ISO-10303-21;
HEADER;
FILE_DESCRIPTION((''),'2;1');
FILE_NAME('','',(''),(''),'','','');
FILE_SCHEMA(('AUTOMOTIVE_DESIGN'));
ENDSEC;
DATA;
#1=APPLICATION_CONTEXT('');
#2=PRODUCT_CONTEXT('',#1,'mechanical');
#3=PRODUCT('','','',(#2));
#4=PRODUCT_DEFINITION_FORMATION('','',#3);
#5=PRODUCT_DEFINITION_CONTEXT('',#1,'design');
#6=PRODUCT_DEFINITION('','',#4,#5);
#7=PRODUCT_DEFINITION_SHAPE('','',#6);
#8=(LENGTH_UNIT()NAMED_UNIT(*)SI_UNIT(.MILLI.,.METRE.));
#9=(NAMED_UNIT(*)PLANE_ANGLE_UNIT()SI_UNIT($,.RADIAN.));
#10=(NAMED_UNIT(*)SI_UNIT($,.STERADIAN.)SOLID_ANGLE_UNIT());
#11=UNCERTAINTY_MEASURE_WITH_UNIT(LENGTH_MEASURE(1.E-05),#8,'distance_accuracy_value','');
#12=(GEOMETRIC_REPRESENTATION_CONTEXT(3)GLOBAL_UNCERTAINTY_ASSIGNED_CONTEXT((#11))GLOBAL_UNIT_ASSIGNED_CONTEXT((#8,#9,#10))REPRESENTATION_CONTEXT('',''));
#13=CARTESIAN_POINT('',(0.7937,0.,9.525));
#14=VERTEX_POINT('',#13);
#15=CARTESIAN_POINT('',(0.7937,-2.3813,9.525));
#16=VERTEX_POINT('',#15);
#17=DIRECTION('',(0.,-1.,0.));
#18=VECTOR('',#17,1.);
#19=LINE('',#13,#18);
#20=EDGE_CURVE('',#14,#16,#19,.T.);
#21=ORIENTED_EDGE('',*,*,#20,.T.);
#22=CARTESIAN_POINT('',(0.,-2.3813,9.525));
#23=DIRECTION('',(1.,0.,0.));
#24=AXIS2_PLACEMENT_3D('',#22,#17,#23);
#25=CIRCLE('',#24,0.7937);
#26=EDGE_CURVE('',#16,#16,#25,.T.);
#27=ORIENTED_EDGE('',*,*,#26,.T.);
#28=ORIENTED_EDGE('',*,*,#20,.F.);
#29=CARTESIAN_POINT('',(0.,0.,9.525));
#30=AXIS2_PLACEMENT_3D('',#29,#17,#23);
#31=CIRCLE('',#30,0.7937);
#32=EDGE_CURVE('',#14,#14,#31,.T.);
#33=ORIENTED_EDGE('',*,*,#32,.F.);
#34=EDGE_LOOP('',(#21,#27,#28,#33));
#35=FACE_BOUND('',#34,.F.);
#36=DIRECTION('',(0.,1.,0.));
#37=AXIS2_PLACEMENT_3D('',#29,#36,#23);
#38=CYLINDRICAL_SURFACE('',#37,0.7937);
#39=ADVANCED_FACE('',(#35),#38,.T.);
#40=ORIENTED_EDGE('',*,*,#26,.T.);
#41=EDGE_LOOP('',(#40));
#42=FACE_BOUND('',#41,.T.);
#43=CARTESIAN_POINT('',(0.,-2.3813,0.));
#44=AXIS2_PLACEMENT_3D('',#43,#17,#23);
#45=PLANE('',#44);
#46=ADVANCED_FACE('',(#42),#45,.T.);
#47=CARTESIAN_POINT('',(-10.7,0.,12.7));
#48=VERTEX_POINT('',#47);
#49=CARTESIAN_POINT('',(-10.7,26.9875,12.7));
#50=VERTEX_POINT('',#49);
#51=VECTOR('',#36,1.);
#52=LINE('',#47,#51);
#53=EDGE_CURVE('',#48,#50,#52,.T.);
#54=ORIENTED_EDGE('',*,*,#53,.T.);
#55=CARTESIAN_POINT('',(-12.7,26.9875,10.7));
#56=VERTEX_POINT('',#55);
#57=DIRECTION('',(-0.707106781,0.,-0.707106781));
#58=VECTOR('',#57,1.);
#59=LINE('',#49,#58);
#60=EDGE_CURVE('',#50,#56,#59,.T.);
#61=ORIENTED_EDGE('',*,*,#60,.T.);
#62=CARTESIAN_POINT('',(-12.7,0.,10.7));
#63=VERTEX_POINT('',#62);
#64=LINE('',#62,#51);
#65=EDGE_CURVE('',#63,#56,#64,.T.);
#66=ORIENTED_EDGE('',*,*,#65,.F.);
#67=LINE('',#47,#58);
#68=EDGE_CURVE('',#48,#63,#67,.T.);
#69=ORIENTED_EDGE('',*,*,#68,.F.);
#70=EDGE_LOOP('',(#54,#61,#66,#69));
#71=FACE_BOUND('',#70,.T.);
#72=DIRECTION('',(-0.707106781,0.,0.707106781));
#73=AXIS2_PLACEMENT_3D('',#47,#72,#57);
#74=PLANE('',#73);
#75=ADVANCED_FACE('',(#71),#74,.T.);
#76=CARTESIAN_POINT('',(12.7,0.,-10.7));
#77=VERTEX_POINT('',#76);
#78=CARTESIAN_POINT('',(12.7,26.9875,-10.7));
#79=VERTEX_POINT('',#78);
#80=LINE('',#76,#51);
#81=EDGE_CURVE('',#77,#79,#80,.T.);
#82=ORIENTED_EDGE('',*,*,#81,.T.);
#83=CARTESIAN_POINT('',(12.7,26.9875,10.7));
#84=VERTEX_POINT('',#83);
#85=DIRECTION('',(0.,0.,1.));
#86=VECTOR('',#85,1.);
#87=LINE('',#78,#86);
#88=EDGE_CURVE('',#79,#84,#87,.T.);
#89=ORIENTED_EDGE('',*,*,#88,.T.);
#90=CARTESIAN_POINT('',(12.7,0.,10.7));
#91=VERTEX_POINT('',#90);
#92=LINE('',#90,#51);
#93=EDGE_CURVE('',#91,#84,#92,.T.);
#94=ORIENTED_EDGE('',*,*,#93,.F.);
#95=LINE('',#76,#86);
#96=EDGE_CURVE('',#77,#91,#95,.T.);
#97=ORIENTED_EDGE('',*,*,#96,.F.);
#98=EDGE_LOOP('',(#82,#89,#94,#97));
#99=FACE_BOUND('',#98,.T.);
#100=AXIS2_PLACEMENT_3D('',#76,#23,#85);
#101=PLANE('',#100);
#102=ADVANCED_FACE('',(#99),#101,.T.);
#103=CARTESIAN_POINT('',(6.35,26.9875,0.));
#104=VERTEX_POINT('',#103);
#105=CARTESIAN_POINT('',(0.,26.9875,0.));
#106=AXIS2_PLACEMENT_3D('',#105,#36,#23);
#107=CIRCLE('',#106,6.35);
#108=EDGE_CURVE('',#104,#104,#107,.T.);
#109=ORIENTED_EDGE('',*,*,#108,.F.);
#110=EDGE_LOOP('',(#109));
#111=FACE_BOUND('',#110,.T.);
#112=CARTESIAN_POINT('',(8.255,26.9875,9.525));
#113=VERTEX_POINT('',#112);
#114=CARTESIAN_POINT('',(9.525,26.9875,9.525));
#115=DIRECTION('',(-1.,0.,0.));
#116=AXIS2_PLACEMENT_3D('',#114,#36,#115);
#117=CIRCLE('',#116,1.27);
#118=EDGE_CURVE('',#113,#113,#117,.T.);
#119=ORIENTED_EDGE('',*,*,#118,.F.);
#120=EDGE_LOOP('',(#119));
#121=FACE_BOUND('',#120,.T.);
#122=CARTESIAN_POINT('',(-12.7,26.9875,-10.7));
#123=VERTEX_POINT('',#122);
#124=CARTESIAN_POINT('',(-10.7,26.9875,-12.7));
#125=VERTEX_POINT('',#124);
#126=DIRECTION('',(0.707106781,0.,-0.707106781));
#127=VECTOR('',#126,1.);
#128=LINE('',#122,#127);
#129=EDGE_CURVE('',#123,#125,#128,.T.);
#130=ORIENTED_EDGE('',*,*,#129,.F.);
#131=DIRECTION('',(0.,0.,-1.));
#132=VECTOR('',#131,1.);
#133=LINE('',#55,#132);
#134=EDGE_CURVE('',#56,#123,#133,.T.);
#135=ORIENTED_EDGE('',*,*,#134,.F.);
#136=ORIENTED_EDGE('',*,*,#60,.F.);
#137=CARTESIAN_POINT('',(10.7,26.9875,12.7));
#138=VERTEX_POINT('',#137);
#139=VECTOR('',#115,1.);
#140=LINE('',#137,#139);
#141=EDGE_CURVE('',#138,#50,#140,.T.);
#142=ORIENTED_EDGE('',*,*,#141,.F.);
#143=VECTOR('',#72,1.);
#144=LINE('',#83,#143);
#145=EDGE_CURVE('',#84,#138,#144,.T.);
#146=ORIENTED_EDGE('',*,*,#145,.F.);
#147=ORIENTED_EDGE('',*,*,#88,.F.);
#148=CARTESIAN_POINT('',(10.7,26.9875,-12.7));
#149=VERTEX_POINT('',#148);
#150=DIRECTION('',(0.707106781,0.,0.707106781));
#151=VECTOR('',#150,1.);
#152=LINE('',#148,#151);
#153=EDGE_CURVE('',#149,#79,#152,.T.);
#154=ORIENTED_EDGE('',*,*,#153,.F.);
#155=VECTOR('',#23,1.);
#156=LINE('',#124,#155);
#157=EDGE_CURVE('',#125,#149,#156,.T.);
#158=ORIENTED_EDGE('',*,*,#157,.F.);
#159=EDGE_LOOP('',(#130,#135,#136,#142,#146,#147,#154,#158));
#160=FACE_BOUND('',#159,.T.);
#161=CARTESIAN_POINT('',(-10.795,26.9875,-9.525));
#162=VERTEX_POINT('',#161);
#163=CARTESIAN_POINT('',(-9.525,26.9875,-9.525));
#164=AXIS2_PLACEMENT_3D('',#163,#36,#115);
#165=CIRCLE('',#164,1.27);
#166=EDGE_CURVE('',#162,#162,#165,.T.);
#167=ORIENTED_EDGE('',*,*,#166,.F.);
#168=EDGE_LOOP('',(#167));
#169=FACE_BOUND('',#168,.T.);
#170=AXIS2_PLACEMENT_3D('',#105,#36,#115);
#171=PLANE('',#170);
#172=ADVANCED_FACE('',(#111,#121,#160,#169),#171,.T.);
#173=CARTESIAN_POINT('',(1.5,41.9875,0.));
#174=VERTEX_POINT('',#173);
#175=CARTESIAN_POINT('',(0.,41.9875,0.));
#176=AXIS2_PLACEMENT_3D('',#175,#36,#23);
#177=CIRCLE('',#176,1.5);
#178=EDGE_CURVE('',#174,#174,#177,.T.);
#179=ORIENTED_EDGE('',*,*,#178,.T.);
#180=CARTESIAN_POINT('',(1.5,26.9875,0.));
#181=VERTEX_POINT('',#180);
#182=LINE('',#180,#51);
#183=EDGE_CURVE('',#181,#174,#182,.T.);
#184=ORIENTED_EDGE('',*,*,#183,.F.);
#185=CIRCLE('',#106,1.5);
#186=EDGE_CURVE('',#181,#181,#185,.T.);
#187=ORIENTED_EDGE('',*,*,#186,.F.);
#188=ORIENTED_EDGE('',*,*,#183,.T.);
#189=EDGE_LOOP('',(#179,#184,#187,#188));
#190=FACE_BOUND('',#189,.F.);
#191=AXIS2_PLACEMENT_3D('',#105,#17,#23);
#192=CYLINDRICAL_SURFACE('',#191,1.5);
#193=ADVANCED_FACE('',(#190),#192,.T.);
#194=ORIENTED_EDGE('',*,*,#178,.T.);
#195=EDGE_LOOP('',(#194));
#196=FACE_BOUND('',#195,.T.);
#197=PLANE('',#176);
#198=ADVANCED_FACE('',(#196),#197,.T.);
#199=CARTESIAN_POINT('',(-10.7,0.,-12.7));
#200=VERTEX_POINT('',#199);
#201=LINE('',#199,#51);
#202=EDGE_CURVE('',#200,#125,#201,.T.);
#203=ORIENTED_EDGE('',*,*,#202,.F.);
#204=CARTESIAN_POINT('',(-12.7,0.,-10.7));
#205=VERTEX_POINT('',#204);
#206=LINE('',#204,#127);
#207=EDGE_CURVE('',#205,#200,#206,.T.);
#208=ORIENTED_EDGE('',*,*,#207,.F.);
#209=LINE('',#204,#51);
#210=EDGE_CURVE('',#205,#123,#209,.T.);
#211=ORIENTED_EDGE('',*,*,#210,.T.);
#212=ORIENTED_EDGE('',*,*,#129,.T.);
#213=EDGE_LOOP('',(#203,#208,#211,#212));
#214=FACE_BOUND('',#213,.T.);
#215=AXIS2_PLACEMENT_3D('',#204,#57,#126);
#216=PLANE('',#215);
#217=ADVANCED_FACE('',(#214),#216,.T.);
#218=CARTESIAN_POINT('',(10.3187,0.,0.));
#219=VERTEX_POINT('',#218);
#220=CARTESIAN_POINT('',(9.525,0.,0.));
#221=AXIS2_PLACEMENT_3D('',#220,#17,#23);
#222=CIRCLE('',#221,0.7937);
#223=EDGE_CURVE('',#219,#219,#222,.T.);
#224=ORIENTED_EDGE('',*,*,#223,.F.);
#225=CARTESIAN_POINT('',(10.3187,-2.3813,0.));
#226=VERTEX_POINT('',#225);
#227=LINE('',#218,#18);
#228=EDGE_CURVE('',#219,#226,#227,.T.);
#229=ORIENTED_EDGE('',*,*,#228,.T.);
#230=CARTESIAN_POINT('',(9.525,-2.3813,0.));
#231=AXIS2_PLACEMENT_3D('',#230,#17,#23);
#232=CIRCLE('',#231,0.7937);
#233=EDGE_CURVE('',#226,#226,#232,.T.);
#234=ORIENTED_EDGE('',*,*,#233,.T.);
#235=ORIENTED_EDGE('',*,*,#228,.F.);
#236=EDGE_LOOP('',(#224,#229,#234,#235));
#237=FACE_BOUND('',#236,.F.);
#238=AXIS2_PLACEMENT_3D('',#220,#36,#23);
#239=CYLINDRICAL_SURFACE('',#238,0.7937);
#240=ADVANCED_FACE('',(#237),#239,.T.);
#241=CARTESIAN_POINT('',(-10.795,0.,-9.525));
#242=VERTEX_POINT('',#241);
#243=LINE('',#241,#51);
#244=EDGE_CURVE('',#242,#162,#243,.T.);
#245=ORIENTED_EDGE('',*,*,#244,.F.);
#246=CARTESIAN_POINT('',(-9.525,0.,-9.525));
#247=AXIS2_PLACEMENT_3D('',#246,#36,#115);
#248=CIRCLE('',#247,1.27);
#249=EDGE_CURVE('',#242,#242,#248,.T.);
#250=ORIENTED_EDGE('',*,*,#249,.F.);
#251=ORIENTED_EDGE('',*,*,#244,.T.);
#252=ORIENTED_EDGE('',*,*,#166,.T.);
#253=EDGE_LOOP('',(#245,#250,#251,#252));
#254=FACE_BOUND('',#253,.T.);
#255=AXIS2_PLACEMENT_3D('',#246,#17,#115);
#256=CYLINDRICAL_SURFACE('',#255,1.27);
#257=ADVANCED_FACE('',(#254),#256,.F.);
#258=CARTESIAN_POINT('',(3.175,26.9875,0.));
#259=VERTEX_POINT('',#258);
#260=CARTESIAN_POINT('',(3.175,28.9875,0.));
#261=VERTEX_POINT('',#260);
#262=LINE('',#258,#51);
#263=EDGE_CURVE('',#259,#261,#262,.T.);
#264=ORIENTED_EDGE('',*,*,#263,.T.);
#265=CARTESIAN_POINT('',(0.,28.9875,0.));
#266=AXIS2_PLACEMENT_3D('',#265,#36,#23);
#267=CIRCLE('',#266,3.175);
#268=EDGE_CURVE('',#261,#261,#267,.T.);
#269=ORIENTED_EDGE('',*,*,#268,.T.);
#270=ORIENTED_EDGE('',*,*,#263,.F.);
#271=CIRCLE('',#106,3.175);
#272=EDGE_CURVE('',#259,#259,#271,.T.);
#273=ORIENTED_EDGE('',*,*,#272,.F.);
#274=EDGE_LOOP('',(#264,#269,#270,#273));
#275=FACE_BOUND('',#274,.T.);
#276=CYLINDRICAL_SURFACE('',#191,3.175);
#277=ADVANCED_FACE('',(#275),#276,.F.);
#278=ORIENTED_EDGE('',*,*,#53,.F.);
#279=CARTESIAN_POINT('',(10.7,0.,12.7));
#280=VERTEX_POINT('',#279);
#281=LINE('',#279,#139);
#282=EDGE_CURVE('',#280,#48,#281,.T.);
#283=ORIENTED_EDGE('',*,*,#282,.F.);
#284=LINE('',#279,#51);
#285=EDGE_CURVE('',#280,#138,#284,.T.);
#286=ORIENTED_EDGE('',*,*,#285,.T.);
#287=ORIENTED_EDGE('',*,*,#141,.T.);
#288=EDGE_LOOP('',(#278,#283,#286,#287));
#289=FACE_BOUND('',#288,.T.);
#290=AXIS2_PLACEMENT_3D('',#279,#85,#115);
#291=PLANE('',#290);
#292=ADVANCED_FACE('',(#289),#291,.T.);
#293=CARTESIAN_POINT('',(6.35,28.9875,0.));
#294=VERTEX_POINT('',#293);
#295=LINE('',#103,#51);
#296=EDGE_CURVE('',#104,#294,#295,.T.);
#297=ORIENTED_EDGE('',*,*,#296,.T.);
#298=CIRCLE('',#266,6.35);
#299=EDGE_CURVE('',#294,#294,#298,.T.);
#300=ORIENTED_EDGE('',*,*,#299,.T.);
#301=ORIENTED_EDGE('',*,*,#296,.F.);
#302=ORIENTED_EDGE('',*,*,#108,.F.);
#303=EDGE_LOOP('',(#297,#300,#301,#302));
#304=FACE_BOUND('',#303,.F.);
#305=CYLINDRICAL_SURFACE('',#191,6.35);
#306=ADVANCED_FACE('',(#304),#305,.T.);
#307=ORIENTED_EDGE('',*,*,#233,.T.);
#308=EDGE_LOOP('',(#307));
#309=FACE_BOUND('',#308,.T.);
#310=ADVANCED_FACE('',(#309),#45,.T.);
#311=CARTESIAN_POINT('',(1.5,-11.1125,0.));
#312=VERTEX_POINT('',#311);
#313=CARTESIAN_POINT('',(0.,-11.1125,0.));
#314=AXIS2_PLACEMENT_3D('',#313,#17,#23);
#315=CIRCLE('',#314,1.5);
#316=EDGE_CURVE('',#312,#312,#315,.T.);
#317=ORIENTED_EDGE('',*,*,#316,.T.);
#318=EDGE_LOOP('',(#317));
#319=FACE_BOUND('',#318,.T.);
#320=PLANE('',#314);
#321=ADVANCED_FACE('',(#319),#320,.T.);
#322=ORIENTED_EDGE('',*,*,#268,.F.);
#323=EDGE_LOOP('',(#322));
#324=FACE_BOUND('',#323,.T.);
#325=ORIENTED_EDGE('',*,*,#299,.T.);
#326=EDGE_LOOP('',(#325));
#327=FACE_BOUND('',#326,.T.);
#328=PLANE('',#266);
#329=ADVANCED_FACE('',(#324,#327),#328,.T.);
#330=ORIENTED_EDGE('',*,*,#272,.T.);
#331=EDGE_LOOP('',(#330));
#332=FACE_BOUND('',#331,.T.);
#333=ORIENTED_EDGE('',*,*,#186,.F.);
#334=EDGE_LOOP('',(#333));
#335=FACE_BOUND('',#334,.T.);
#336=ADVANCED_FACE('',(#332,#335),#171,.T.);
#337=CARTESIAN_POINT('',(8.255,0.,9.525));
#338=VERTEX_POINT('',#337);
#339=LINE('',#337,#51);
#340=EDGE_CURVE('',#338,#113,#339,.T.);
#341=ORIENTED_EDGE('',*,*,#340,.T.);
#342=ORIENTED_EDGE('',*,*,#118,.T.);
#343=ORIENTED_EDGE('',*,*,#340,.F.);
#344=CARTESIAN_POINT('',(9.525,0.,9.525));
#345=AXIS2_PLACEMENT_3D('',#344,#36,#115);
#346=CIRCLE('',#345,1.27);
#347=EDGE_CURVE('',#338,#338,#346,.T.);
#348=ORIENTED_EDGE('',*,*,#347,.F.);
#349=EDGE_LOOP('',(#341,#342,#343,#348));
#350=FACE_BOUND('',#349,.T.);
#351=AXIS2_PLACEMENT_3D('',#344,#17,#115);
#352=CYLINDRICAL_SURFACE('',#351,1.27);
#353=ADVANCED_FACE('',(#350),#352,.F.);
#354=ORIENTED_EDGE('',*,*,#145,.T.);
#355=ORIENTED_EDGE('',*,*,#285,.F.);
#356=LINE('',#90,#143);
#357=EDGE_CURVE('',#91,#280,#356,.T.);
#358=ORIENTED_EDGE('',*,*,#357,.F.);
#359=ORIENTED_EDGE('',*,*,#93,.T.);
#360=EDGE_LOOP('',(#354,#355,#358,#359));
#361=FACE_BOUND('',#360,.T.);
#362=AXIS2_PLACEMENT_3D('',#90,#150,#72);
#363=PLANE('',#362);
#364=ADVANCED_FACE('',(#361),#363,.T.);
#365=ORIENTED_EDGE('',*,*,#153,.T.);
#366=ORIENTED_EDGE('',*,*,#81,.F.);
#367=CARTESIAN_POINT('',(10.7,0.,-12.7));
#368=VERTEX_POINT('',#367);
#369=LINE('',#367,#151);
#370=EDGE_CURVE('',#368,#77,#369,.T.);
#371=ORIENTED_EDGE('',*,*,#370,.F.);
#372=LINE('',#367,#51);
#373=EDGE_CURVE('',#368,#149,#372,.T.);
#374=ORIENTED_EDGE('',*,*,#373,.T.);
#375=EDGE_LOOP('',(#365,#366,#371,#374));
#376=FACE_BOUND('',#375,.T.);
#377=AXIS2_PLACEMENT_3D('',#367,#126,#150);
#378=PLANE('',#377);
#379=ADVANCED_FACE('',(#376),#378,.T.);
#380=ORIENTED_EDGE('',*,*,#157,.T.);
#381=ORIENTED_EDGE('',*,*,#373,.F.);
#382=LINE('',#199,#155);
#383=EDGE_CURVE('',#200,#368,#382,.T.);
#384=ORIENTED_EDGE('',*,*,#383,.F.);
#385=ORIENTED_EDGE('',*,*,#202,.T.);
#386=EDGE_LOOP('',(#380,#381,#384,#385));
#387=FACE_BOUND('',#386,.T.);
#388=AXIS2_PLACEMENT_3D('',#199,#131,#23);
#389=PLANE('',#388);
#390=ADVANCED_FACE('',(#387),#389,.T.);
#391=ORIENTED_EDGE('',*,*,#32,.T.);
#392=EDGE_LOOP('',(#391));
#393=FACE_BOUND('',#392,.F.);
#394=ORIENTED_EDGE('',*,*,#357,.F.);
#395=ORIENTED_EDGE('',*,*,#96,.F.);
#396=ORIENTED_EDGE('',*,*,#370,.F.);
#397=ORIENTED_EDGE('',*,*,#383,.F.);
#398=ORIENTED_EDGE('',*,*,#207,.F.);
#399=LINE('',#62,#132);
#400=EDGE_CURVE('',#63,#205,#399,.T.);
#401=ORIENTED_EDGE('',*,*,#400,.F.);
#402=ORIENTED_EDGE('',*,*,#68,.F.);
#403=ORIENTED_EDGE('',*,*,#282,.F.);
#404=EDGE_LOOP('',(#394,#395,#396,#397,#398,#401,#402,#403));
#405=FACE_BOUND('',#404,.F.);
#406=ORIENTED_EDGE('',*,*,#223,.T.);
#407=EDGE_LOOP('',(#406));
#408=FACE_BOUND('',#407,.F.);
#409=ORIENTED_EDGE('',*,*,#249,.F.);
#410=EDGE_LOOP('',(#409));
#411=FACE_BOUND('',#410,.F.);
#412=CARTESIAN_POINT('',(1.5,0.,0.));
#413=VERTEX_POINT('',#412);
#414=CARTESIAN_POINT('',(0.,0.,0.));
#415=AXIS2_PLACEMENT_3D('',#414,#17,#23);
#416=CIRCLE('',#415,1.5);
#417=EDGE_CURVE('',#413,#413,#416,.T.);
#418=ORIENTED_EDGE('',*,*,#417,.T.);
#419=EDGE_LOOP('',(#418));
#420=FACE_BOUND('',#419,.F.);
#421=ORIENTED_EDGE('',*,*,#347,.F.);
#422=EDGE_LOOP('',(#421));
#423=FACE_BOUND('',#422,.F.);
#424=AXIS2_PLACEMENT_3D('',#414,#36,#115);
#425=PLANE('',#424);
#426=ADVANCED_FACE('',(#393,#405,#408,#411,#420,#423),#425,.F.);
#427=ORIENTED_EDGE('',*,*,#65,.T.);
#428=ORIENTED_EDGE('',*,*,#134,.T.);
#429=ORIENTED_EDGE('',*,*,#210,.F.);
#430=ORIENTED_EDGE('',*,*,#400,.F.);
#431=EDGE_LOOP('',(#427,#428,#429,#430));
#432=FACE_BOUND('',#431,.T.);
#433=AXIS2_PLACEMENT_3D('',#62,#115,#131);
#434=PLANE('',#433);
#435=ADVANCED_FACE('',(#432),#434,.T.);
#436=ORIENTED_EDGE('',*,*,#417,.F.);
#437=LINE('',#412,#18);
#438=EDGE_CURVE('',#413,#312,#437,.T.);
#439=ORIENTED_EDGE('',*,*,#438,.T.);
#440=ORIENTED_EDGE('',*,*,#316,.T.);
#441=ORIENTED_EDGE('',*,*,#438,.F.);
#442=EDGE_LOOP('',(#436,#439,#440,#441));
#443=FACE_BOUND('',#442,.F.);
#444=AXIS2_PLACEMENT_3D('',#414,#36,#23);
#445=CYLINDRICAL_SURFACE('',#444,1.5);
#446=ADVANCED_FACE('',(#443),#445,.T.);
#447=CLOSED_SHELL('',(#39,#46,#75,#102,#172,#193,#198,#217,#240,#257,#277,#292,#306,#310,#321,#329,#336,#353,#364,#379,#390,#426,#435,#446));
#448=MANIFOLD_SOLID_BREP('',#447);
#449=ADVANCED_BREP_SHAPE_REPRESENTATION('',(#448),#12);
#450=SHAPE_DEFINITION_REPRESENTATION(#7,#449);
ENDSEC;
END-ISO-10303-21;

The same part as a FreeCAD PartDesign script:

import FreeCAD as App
import Part
import Sketcher
from FreeCAD import Vector
Q = App.Units.Quantity

doc = App.newDocument("Part")
body = doc.addObject("PartDesign::Body", "Body")

# Sketch on XZ plane
sketch1 = body.newObject("Sketcher::SketchObject", "Sketch")
sketch1.AttachmentSupport = (doc.getObject("XZ_Plane"), [""])
sketch1.MapMode = "FlatFace"
sketch1.addGeometry([
    Part.LineSegment(Vector(10.7, -12.7, 0), Vector(-10.7, -12.7, 0)),  # 0
    Part.LineSegment(Vector(-10.7, -12.7, 0), Vector(-12.7, -10.7, 0)),  # 1
    Part.LineSegment(Vector(-12.7, -10.7, 0), Vector(-12.7, 10.7, 0)),  # 2
    Part.LineSegment(Vector(-12.7, 10.7, 0), Vector(-10.7, 12.7, 0)),  # 3
    Part.LineSegment(Vector(-10.7, 12.7, 0), Vector(10.7, 12.7, 0)),  # 4
    Part.LineSegment(Vector(10.7, 12.7, 0), Vector(12.7, 10.7, 0)),  # 5
    Part.LineSegment(Vector(12.7, 10.7, 0), Vector(12.7, -10.7, 0)),  # 6
    Part.LineSegment(Vector(12.7, -10.7, 0), Vector(10.7, -12.7, 0)),  # 7
    Part.Circle(Vector(-9.5, -9.5, 0), Vector(0, 0, 1), 1.3),  # 8
    Part.Circle(Vector(9.5, 9.5, 0), Vector(0, 0, 1), 1.3),  # 9
], False)
sketch1.addConstraint([
    Sketcher.Constraint("Coincident", 0, 2, 1, 1),
    Sketcher.Constraint("Coincident", 1, 2, 2, 1),
    Sketcher.Constraint("Coincident", 2, 2, 3, 1),
    Sketcher.Constraint("Coincident", 3, 2, 4, 1),
    Sketcher.Constraint("Coincident", 4, 2, 5, 1),
    Sketcher.Constraint("Coincident", 5, 2, 6, 1),
    Sketcher.Constraint("Coincident", 6, 2, 7, 1),
    Sketcher.Constraint("Coincident", 7, 2, 0, 1),
    Sketcher.Constraint("Horizontal", 0),
    Sketcher.Constraint("Vertical", 2),
    Sketcher.Constraint("Horizontal", 4),
    Sketcher.Constraint("Vertical", 6),
    Sketcher.Constraint("Equal", 8, 9),
    Sketcher.Constraint("Symmetric", 8, 3, 9, 3, -1, 1),
    Sketcher.Constraint("Symmetric", 0, 2, 4, 2, -1, 1),
    Sketcher.Constraint("Symmetric", 1, 2, 5, 2, -1, 1),
    Sketcher.Constraint("Perpendicular", 1, 3),
    Sketcher.Constraint("Perpendicular", 5, 7),
    Sketcher.Constraint("Horizontal", 2, 2, 5, 2),
    Sketcher.Constraint("Horizontal", 1, 2, 6, 2),
    Sketcher.Constraint("Vertical", 0, 2, 3, 2),
    Sketcher.Constraint("Equal", 4, 2),
    Sketcher.Constraint("Diameter", 8, Q("0.1 in")),
    Sketcher.Constraint("DistanceY", 0, 2, 3, 2, Q("1 in")),
    Sketcher.Constraint("DistanceY", 0, 2, 8, 3, Q("0.125 in")),
    Sketcher.Constraint("DistanceX", 1, 2, 8, 3, Q("0.125 in")),
    Sketcher.Constraint("DistanceX", 1, 2, 0, 2, Q("2 mm")),
])
pad1 = body.newObject("PartDesign::Pad", "Pad")
pad1.Profile = sketch1
pad1.Length = Q("1.0625 in")
pad1.Reversed = True

# Sketch on XZ plane
sketch2 = body.newObject("Sketcher::SketchObject", "Sketch001")
sketch2.AttachmentSupport = (doc.getObject("XZ_Plane"), [""])
sketch2.MapMode = "FlatFace"
sketch2.AttachmentOffset = App.Placement(Vector(0, 0, -1.0625 * 25.4), App.Rotation())
sketch2.addGeometry([
    Part.Circle(Vector(0, 0, 0), Vector(0, 0, 1), 6.3),
    Part.Circle(Vector(0, 0, 0), Vector(0, 0, 1), 3.2),
], False)
sketch2.addConstraint([
    Sketcher.Constraint("Coincident", 0, 3, -1, 1),
    Sketcher.Constraint("Coincident", 1, 3, -1, 1),
    Sketcher.Constraint("Diameter", 0, Q("0.5 in")),
    Sketcher.Constraint("Diameter", 1, Q("0.25 in")),
])
pad2 = body.newObject("PartDesign::Pad", "Pad001")
pad2.Profile = sketch2
pad2.Length = 2
pad2.Reversed = True

# Sketch on XZ plane
sketch3 = body.newObject("Sketcher::SketchObject", "Sketch002")
sketch3.AttachmentSupport = (doc.getObject("XZ_Plane"), [""])
sketch3.MapMode = "FlatFace"
sketch3.AttachmentOffset = App.Placement(Vector(0, 0, -1.0625 * 25.4), App.Rotation())
sketch3.addGeometry(Part.Circle(Vector(0, 0, 0), Vector(0, 0, 1), 1.5), False)
sketch3.addConstraint([
    Sketcher.Constraint("Coincident", 0, 3, -1, 1),
    Sketcher.Constraint("Diameter", 0, Q("0.1181 in")),
])
pad3 = body.newObject("PartDesign::Pad", "Pad002")
pad3.Profile = sketch3
pad3.Length = 15
pad3.Reversed = True

# Sketch on XZ plane
sketch4 = body.newObject("Sketcher::SketchObject", "Sketch003")
sketch4.AttachmentSupport = (doc.getObject("XZ_Plane"), [""])
sketch4.MapMode = "FlatFace"
sketch4.addGeometry(Part.Circle(Vector(0, 0, 0), Vector(0, 0, 1), 1.5), False)
sketch4.addConstraint([
    Sketcher.Constraint("Coincident", 0, 3, -1, 1),
    Sketcher.Constraint("Diameter", 0, Q("0.1181 in")),
])
pad4 = body.newObject("PartDesign::Pad", "Pad003")
pad4.Profile = sketch4
pad4.Length = Q("0.4375 in")

# Sketch on XZ plane
sketch5 = body.newObject("Sketcher::SketchObject", "Sketch004")
sketch5.AttachmentSupport = (doc.getObject("XZ_Plane"), [""])
sketch5.MapMode = "FlatFace"
sketch5.addGeometry([
    Part.Circle(Vector(0, 9.5, 0), Vector(0, 0, 1), 0.8),
    Part.Circle(Vector(9.5, 0, 0), Vector(0, 0, 1), 0.8),
], False)
sketch5.addConstraint([
    Sketcher.Constraint("Equal", 0, 1),
    Sketcher.Constraint("PointOnObject", 0, 3, -2),
    Sketcher.Constraint("PointOnObject", 1, 3, -1),
    Sketcher.Constraint("Diameter", 0, Q("0.0625 in")),
    Sketcher.Constraint("DistanceY", -1, 1, 0, 3, Q("0.375 in")),
    Sketcher.Constraint("DistanceX", -1, 1, 1, 3, Q("0.375 in")),
])
pad5 = body.newObject("PartDesign::Pad", "Pad004")
pad5.Profile = sketch5
pad5.Length = Q("0.093752 in")

doc.recompute()
